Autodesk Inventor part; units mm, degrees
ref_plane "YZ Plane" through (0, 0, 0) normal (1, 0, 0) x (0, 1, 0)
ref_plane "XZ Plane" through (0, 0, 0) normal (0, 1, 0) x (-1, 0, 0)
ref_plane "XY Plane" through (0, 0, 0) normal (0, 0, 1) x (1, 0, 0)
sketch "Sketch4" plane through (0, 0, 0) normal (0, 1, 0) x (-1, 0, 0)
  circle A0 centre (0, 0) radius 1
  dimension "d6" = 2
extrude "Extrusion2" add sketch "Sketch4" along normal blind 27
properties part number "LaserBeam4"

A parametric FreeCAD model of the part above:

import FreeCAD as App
import Part
import Sketcher
Q = App.Units.Quantity

doc = App.newDocument("Part")
params = doc.addObject("Spreadsheet::Sheet", "Params")
for row, (alias, value) in enumerate([
    ("sketch1_diameter", "2 mm"),
    ("pad1_length", "27 mm"),
], start=1):
    params.set(f"A{row}", alias)
    params.set(f"B{row}", "=" + value)
    params.setAlias(f"B{row}", alias)

body = doc.addObject("PartDesign::Body", "Body")

# Sketch on XZ plane
sketch1 = doc.addObject("Sketcher::SketchObject", "Sketch")
body.addObject(sketch1)
sketch1.AttachmentSupport = (doc.XZ_Plane, [""])
sketch1.MapMode = "FlatFace"
sketch1.addGeometry(Part.Circle(App.Vector(0, 0, 0), App.Vector(0, 0, 1), 1), False)
sketch1.addConstraint([
    Sketcher.Constraint("Coincident", 0, 3, -1, 1),
    Sketcher.Constraint("Diameter", 0, Q("2 mm")),
])
sketch1.setExpression("Constraints[1]", "Params.sketch1_diameter")
pad1 = doc.addObject("PartDesign::Pad", "Pad")
body.addObject(pad1)
pad1.Profile = sketch1
pad1.setExpression("Length", "Params.pad1_length")
pad1.Reversed = True

doc.recompute()
